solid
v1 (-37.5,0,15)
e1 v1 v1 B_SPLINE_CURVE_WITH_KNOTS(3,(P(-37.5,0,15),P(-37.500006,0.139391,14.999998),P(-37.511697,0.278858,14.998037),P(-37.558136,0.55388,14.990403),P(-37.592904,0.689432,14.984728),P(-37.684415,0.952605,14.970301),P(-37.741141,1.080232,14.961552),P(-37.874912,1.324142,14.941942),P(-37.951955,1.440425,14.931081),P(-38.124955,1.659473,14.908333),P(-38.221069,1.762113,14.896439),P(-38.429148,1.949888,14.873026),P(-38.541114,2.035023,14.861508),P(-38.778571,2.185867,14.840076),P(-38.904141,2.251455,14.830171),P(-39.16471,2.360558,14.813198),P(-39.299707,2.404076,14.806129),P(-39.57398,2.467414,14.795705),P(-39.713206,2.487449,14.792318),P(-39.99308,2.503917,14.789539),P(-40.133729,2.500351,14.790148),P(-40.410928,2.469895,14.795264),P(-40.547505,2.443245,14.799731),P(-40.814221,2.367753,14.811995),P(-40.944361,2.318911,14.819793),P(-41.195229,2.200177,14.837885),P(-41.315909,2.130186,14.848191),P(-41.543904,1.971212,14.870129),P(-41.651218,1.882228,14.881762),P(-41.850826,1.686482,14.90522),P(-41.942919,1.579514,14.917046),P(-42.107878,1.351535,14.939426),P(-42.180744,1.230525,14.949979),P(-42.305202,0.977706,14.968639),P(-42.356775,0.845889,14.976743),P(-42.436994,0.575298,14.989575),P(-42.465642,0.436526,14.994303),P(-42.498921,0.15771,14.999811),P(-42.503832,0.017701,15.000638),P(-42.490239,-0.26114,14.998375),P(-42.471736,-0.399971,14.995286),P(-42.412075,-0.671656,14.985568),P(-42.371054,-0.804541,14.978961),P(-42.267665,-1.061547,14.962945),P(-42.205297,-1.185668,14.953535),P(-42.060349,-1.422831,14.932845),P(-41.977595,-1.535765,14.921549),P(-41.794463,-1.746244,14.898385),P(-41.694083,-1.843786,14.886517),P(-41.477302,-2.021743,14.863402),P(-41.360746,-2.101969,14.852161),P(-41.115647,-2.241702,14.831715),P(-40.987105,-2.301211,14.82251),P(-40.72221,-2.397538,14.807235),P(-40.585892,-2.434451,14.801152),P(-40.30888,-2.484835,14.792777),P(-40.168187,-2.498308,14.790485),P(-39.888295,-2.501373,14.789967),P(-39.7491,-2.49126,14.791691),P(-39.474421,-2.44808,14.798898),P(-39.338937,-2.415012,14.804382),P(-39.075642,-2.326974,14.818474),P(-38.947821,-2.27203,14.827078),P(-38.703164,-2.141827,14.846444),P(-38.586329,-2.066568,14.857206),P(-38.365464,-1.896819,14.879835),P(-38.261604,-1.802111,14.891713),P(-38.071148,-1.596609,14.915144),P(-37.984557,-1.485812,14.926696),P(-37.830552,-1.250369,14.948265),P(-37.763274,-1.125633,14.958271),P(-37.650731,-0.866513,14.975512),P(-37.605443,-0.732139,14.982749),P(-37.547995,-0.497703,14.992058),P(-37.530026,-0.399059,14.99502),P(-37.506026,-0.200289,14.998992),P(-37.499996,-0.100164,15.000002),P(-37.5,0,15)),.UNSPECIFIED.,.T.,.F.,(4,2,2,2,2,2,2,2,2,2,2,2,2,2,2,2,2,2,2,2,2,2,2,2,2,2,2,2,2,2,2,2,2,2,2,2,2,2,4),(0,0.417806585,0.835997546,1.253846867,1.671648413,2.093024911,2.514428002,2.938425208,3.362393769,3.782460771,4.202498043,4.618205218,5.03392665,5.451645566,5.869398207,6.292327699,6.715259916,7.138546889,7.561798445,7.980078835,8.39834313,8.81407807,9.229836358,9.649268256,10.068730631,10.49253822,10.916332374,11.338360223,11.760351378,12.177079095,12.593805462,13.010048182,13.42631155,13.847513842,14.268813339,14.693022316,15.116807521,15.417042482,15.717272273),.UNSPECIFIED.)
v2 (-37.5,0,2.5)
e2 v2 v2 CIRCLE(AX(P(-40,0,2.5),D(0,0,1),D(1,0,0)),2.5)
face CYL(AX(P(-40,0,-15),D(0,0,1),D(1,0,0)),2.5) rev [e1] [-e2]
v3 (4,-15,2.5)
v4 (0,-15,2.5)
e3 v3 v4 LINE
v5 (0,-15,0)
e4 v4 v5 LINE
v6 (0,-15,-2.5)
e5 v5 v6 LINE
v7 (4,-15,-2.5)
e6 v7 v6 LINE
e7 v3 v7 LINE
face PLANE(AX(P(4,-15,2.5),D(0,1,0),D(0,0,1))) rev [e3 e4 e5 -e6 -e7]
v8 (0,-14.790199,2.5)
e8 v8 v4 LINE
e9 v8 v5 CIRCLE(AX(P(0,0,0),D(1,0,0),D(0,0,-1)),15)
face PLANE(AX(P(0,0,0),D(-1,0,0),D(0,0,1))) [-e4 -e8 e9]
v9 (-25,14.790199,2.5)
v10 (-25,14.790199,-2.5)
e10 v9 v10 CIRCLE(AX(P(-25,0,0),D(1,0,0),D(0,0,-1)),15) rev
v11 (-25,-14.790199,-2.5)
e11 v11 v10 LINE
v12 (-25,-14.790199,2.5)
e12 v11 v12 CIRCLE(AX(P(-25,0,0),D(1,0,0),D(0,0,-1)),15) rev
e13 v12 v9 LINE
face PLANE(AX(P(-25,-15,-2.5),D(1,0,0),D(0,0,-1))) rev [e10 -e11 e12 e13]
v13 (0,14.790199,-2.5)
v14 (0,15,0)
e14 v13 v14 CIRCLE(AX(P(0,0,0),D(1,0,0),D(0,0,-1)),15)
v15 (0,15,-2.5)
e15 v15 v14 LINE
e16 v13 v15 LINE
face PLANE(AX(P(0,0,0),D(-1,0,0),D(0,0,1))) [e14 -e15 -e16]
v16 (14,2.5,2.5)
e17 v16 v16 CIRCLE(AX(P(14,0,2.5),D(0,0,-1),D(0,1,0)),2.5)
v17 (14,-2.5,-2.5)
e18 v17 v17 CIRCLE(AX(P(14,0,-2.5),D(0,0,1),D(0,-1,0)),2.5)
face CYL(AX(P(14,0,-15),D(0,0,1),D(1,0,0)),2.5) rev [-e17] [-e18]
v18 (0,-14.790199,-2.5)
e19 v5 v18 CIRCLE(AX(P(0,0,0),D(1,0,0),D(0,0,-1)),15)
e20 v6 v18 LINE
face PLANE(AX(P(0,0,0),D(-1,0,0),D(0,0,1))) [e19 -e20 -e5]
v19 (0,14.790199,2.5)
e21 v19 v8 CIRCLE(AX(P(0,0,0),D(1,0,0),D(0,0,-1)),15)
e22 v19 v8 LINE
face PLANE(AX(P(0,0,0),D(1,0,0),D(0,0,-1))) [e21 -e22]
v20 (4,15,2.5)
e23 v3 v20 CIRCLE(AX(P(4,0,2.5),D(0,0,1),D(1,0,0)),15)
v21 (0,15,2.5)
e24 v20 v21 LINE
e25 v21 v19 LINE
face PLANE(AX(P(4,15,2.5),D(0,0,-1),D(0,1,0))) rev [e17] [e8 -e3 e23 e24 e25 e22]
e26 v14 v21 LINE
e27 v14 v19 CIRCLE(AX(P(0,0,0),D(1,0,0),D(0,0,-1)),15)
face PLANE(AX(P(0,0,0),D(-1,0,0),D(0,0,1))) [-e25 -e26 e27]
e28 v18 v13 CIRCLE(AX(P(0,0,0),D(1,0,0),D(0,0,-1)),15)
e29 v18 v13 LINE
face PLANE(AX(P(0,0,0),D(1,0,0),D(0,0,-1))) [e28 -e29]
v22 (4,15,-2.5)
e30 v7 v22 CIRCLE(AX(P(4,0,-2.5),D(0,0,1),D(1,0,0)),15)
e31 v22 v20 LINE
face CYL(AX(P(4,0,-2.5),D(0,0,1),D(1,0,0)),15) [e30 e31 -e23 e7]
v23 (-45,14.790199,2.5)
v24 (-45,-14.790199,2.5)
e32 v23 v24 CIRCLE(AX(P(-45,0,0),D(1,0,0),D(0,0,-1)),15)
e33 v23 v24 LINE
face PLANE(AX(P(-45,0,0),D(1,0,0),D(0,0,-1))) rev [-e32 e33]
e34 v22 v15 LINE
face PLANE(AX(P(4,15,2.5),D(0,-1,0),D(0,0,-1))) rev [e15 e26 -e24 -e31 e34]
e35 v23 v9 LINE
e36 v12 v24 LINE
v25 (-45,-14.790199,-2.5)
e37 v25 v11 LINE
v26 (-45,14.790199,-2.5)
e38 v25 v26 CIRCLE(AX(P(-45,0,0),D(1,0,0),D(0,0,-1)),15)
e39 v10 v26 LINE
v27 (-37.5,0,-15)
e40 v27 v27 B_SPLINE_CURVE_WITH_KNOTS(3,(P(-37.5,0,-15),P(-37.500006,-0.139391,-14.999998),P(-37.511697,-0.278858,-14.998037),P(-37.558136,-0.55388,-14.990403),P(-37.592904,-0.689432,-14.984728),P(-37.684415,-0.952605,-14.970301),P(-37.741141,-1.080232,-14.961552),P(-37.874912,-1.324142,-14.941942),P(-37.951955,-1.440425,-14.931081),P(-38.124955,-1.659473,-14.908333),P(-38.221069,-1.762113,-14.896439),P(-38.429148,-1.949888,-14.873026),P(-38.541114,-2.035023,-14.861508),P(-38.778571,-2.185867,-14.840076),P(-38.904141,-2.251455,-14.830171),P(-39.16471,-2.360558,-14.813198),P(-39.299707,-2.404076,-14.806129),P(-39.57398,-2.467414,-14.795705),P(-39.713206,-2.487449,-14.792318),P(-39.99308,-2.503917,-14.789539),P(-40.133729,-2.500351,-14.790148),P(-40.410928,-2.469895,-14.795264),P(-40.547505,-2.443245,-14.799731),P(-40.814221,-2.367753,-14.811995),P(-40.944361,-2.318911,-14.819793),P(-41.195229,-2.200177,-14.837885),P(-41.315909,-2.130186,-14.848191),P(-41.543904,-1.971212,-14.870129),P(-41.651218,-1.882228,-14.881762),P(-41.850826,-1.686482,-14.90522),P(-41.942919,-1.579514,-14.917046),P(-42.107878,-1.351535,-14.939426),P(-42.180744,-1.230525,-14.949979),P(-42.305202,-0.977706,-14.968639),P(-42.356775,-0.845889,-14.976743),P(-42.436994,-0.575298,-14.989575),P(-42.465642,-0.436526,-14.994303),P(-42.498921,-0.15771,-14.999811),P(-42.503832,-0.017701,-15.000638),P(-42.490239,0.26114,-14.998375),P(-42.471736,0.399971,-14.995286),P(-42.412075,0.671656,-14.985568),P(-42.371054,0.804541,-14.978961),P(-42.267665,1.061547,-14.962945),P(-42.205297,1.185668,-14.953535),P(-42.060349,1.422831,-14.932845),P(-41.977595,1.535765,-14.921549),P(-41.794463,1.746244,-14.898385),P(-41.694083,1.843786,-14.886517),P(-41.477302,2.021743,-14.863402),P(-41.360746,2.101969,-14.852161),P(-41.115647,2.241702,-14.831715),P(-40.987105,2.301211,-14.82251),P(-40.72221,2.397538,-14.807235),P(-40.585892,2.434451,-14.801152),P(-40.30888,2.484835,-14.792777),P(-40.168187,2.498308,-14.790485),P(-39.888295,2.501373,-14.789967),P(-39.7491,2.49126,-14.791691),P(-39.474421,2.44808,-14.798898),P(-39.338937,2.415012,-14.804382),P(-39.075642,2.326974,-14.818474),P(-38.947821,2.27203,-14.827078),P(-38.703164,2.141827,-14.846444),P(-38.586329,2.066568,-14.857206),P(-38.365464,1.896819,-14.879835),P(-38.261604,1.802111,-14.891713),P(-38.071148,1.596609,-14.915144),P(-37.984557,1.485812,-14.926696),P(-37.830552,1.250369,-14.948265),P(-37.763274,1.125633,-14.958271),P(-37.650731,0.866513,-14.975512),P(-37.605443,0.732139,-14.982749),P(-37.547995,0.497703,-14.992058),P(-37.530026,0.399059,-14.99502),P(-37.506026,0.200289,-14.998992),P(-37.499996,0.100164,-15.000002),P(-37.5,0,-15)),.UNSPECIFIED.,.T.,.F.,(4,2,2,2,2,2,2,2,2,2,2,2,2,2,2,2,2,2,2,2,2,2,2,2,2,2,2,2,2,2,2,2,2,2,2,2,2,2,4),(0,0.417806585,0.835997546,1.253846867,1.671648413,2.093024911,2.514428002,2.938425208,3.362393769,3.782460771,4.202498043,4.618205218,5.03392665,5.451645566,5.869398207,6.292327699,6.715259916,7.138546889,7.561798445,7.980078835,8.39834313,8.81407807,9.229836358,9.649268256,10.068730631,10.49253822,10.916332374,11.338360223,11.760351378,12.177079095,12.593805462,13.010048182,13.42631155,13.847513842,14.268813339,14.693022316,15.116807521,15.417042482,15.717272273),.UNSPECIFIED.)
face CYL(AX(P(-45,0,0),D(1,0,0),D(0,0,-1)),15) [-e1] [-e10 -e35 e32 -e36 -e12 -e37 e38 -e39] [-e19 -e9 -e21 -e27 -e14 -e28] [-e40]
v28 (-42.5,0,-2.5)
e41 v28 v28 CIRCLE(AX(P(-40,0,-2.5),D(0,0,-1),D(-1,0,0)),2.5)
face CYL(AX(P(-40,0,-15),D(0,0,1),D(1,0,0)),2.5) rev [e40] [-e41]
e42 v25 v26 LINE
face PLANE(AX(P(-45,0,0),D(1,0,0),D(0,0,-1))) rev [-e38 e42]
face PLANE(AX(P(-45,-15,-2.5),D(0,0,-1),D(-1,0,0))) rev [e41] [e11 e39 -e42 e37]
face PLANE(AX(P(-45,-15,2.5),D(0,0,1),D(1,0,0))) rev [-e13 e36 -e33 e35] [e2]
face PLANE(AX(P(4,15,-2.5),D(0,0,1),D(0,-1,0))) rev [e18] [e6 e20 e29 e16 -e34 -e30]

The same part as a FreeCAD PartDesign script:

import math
import FreeCAD as App
import Part
import Sketcher

V = App.Vector


def add_polygon(sketch, points):
    """Adds a closed chain of lines whose ends are joined by coincident constraints."""
    first, n = sketch.GeometryCount, len(points)
    for a, b in zip(points, points[1:] + points[:1]):
        sketch.addGeometry(Part.LineSegment(App.Vector(*a, 0), App.Vector(*b, 0)), False)
    for i in range(n):
        sketch.addConstraint(Sketcher.Constraint("Coincident", first + i, 2, first + (i + 1) % n, 1))

doc = App.newDocument("Part")
body = doc.addObject("PartDesign::Body", "Body")

sketch1 = doc.addObject("Sketcher::SketchObject", "Sketch")
body.addObject(sketch1)
sketch1.AttachmentSupport = (doc.YZ_Plane, [""])
sketch1.MapMode = "FlatFace"
sketch1.addGeometry(Part.Circle(V(0, 0, 0), V(0, 0, 1), 15), False)
sketch1.addConstraint([
    Sketcher.Constraint("Coincident", 0, 3, -1, 1),
    Sketcher.Constraint("Diameter", 0, 30.0),
])
pad1 = doc.addObject("PartDesign::Pad", "Pad")
body.addObject(pad1)
pad1.Profile = sketch1
pad1.Length = 45
pad1.Reversed = True

sketch2 = doc.addObject("Sketcher::SketchObject", "Sketch001")
body.addObject(sketch2)
sketch2.AttachmentSupport = (doc.XZ_Plane, [""])
sketch2.MapMode = "FlatFace"
add_polygon(sketch2, [(-45, -2.5), (-45, 2.5), (-25, 2.5), (-25, -2.5)])
sketch2.addConstraint([
    Sketcher.Constraint("Vertical", 0),
    Sketcher.Constraint("Horizontal", 1),
    Sketcher.Constraint("Vertical", 2),
    Sketcher.Constraint("Horizontal", 3),
    Sketcher.Constraint("DistanceX", 1, 1, 1, 2, 20.0),
    Sketcher.Constraint("DistanceY", 0, 1, 0, 2, 5.0),
    Sketcher.Constraint("DistanceX", 0, 2, -1, 1, 45.0),
    Sketcher.Constraint("DistanceY", -1, 1, 0, 2, 2.5),
])
pocket1 = doc.addObject("PartDesign::Pocket", "Pocket")
body.addObject(pocket1)
pocket1.Profile = sketch2
pocket1.Type = "ThroughAll"
pocket1.Midplane = True

sketch3 = doc.addObject("Sketcher::SketchObject", "Sketch002")
body.addObject(sketch3)
sketch3.AttachmentSupport = (doc.XY_Plane, [""])
sketch3.MapMode = "FlatFace"
sketch3.addGeometry(Part.Circle(V(-40, 0, 0), V(0, 0, 1), 2.5), False)
sketch3.addConstraint([
    Sketcher.Constraint("PointOnObject", 0, 3, -1),
    Sketcher.Constraint("Diameter", 0, 5.0),
    Sketcher.Constraint("DistanceX", 0, 3, -1, 1, 40.0),
])
pocket2 = doc.addObject("PartDesign::Pocket", "Pocket001")
body.addObject(pocket2)
pocket2.Profile = sketch3
pocket2.Type = "ThroughAll"
pocket2.Midplane = True

sketch4 = doc.addObject("Sketcher::SketchObject", "Sketch003")
body.addObject(sketch4)
sketch4.AttachmentSupport = (doc.YZ_Plane, [""])
sketch4.MapMode = "FlatFace"
add_polygon(sketch4, [(15, 2.5), (-15, 2.5), (-15, -2.5), (15, -2.5)])
sketch4.addConstraint([
    Sketcher.Constraint("Horizontal", 0),
    Sketcher.Constraint("Vertical", 1),
    Sketcher.Constraint("Horizontal", 2),
    Sketcher.Constraint("Vertical", 3),
    Sketcher.Constraint("Symmetric", 0, 2, 2, 2, -1, 1),
    Sketcher.Constraint("DistanceX", 0, 2, 0, 1, 30.0),
    Sketcher.Constraint("DistanceY", 1, 2, 1, 1, 5.0),
])
pad2 = doc.addObject("PartDesign::Pad", "Pad001")
body.addObject(pad2)
pad2.Profile = sketch4
pad2.Length = 4

sketch5 = doc.addObject("Sketcher::SketchObject", "Sketch004")
body.addObject(sketch5)
sketch5.AttachmentSupport = (doc.XY_Plane, [""])
sketch5.MapMode = "FlatFace"
sketch5.AttachmentOffset = App.Placement(V(0, 0, 2.5), App.Rotation())
sketch5.addGeometry([
    Part.LineSegment(V(4, 15, 0), V(4, -15, 0)),
    Part.ArcOfCircle(Part.Circle(V(4, 0, 0), V(0, 0, 1), 15), math.radians(-90), math.radians(90)),
], False)
sketch5.addConstraint([
    Sketcher.Constraint("Coincident", 0, 1, 1, 2),
    Sketcher.Constraint("Coincident", 1, 1, 0, 2),
    Sketcher.Constraint("Vertical", 0),
    Sketcher.Constraint("PointOnObject", 1, 3, -1),
    Sketcher.Constraint("Vertical", 1, 3, 0, 1),
    Sketcher.Constraint("Radius", 1, 15.0),
    Sketcher.Constraint("DistanceX", -1, 1, 1, 3, 4.0),
])
pad3 = doc.addObject("PartDesign::Pad", "Pad002")
body.addObject(pad3)
pad3.Profile = sketch5
pad3.Length = 5
pad3.Reversed = True

sketch6 = doc.addObject("Sketcher::SketchObject", "Sketch005")
body.addObject(sketch6)
sketch6.AttachmentSupport = (doc.XY_Plane, [""])
sketch6.MapMode = "FlatFace"
sketch6.AttachmentOffset = App.Placement(V(0, 0, 2.5), App.Rotation())
sketch6.addGeometry(Part.Circle(V(14, 0, 0), V(0, 0, 1), 2.5), False)
sketch6.addConstraint([
    Sketcher.Constraint("PointOnObject", 0, 3, -1),
    Sketcher.Constraint("Diameter", 0, 5.0),
    Sketcher.Constraint("DistanceX", -1, 1, 0, 3, 14.0),
])
pocket3 = doc.addObject("PartDesign::Pocket", "Pocket002")
body.addObject(pocket3)
pocket3.Profile = sketch6
pocket3.Type = "ThroughAll"
pocket3.Midplane = True

doc.recompute()
